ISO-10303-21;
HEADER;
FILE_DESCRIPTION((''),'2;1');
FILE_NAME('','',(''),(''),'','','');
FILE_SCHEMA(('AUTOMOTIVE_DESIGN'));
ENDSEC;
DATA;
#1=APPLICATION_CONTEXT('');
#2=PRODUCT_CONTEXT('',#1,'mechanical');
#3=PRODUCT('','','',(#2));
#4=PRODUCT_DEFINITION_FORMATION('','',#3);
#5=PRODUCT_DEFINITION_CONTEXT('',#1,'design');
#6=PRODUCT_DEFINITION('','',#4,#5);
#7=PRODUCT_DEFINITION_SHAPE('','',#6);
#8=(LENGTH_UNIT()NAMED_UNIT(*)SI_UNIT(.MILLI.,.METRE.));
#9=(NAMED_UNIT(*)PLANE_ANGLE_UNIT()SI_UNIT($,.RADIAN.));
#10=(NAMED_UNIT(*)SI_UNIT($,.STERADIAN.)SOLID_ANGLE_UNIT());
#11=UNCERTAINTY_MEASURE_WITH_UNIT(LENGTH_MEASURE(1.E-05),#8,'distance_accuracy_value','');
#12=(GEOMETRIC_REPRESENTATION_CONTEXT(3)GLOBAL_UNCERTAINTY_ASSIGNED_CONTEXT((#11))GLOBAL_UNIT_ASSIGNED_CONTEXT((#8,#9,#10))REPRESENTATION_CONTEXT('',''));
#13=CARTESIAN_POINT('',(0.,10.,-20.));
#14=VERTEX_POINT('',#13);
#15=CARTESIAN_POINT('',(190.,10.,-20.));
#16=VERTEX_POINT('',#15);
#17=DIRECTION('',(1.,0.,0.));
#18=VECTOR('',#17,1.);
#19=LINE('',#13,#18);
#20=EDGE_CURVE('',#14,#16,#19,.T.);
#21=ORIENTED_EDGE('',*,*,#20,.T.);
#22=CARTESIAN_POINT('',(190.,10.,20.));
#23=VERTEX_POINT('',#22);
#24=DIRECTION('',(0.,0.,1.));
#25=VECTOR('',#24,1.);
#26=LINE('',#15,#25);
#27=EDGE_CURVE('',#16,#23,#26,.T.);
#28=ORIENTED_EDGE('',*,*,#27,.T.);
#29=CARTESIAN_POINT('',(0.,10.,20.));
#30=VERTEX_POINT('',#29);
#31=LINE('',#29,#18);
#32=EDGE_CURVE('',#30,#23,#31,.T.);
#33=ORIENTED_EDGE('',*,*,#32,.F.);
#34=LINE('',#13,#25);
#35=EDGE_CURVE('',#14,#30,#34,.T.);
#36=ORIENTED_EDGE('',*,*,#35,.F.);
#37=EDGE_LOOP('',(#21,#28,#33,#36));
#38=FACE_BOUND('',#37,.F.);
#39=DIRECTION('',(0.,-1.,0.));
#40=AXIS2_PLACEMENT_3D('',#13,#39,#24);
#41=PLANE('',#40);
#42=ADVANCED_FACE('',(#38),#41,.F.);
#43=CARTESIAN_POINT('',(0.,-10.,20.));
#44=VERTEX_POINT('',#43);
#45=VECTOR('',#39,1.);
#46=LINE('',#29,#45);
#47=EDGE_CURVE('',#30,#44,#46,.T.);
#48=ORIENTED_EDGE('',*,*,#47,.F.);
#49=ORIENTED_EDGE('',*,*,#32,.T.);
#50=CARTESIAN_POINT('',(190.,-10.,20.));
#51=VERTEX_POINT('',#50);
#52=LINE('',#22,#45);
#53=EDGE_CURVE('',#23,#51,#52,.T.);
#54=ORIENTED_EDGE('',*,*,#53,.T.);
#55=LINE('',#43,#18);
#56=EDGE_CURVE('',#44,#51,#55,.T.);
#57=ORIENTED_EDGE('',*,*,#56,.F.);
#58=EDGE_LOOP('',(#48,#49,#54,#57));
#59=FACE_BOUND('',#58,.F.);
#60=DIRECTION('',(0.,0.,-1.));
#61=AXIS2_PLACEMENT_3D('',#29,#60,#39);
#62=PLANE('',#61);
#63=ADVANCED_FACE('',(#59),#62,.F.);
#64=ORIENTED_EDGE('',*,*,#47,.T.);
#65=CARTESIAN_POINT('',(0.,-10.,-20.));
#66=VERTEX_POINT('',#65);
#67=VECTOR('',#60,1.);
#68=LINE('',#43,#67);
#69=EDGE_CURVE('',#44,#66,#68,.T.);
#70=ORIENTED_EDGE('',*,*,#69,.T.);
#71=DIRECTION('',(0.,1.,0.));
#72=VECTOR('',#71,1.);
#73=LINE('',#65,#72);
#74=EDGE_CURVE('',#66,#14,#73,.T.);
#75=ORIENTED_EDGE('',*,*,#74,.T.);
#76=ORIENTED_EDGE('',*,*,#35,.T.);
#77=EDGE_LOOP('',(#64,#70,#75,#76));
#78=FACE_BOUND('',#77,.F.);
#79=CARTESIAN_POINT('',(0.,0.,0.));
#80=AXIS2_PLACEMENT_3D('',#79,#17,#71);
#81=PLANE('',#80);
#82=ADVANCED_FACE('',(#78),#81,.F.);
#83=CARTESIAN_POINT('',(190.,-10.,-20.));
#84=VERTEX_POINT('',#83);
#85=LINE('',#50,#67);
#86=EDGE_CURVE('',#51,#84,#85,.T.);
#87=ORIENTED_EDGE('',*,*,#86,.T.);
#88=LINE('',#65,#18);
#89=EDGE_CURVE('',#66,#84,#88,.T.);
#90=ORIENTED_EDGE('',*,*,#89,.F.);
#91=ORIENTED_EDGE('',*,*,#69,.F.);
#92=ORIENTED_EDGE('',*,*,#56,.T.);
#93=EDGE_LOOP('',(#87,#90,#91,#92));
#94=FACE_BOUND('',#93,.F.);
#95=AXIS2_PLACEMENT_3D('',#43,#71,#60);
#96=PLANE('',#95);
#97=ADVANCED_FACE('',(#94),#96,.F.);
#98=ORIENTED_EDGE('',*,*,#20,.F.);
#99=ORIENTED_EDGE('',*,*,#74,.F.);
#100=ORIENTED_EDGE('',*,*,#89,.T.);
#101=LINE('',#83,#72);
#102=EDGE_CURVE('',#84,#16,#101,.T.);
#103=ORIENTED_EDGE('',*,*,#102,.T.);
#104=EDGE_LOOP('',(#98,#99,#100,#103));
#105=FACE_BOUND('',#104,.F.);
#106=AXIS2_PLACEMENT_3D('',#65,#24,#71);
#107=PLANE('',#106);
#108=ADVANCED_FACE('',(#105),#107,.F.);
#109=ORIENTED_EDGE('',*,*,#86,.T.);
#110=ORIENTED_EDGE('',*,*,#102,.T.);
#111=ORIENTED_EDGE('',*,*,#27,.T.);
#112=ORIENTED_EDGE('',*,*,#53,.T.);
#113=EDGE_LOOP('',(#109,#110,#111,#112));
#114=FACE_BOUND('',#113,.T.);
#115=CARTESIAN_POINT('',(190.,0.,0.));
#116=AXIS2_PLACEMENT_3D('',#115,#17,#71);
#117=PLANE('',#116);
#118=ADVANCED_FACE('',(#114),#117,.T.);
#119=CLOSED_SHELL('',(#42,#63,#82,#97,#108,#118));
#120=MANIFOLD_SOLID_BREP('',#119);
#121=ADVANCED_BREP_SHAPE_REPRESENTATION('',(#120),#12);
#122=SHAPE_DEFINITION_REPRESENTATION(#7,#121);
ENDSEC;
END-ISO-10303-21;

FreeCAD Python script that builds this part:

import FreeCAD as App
import Part
import Sketcher
from FreeCAD import Vector

doc = App.newDocument("Part")
body = doc.addObject("PartDesign::Body", "Body")

# Sketch on YZ plane
sketch1 = doc.addObject("Sketcher::SketchObject", "Sketch")
body.addObject(sketch1)
sketch1.AttachmentSupport = (doc.YZ_Plane, [""])
sketch1.MapMode = "FlatFace"
sketch1.addGeometry([
    Part.LineSegment(Vector(-10, 20, 0), Vector(-10, -20, 0)),
    Part.LineSegment(Vector(-10, -20, 0), Vector(10, -20, 0)),
    Part.LineSegment(Vector(10, -20, 0), Vector(10, 20, 0)),
    Part.LineSegment(Vector(10, 20, 0), Vector(-10, 20, 0)),
], False)
sketch1.addConstraint([
    Sketcher.Constraint("Coincident", 0, 2, 1, 1),
    Sketcher.Constraint("Coincident", 1, 2, 2, 1),
    Sketcher.Constraint("Coincident", 2, 2, 3, 1),
    Sketcher.Constraint("Coincident", 3, 2, 0, 1),
    Sketcher.Constraint("Vertical", 0),
    Sketcher.Constraint("Horizontal", 1),
    Sketcher.Constraint("Vertical", 2),
    Sketcher.Constraint("Horizontal", 3),
    Sketcher.Constraint("Symmetric", 0, 2, 2, 2, -1, 1),
    Sketcher.Constraint("DistanceX", 1, 1, 1, 2, 20.0),
    Sketcher.Constraint("DistanceY", 0, 2, 0, 1, 40.0),
])
pad1 = doc.addObject("PartDesign::Pad", "Pad")
body.addObject(pad1)
pad1.Profile = sketch1
pad1.Length = 190

doc.recompute()
